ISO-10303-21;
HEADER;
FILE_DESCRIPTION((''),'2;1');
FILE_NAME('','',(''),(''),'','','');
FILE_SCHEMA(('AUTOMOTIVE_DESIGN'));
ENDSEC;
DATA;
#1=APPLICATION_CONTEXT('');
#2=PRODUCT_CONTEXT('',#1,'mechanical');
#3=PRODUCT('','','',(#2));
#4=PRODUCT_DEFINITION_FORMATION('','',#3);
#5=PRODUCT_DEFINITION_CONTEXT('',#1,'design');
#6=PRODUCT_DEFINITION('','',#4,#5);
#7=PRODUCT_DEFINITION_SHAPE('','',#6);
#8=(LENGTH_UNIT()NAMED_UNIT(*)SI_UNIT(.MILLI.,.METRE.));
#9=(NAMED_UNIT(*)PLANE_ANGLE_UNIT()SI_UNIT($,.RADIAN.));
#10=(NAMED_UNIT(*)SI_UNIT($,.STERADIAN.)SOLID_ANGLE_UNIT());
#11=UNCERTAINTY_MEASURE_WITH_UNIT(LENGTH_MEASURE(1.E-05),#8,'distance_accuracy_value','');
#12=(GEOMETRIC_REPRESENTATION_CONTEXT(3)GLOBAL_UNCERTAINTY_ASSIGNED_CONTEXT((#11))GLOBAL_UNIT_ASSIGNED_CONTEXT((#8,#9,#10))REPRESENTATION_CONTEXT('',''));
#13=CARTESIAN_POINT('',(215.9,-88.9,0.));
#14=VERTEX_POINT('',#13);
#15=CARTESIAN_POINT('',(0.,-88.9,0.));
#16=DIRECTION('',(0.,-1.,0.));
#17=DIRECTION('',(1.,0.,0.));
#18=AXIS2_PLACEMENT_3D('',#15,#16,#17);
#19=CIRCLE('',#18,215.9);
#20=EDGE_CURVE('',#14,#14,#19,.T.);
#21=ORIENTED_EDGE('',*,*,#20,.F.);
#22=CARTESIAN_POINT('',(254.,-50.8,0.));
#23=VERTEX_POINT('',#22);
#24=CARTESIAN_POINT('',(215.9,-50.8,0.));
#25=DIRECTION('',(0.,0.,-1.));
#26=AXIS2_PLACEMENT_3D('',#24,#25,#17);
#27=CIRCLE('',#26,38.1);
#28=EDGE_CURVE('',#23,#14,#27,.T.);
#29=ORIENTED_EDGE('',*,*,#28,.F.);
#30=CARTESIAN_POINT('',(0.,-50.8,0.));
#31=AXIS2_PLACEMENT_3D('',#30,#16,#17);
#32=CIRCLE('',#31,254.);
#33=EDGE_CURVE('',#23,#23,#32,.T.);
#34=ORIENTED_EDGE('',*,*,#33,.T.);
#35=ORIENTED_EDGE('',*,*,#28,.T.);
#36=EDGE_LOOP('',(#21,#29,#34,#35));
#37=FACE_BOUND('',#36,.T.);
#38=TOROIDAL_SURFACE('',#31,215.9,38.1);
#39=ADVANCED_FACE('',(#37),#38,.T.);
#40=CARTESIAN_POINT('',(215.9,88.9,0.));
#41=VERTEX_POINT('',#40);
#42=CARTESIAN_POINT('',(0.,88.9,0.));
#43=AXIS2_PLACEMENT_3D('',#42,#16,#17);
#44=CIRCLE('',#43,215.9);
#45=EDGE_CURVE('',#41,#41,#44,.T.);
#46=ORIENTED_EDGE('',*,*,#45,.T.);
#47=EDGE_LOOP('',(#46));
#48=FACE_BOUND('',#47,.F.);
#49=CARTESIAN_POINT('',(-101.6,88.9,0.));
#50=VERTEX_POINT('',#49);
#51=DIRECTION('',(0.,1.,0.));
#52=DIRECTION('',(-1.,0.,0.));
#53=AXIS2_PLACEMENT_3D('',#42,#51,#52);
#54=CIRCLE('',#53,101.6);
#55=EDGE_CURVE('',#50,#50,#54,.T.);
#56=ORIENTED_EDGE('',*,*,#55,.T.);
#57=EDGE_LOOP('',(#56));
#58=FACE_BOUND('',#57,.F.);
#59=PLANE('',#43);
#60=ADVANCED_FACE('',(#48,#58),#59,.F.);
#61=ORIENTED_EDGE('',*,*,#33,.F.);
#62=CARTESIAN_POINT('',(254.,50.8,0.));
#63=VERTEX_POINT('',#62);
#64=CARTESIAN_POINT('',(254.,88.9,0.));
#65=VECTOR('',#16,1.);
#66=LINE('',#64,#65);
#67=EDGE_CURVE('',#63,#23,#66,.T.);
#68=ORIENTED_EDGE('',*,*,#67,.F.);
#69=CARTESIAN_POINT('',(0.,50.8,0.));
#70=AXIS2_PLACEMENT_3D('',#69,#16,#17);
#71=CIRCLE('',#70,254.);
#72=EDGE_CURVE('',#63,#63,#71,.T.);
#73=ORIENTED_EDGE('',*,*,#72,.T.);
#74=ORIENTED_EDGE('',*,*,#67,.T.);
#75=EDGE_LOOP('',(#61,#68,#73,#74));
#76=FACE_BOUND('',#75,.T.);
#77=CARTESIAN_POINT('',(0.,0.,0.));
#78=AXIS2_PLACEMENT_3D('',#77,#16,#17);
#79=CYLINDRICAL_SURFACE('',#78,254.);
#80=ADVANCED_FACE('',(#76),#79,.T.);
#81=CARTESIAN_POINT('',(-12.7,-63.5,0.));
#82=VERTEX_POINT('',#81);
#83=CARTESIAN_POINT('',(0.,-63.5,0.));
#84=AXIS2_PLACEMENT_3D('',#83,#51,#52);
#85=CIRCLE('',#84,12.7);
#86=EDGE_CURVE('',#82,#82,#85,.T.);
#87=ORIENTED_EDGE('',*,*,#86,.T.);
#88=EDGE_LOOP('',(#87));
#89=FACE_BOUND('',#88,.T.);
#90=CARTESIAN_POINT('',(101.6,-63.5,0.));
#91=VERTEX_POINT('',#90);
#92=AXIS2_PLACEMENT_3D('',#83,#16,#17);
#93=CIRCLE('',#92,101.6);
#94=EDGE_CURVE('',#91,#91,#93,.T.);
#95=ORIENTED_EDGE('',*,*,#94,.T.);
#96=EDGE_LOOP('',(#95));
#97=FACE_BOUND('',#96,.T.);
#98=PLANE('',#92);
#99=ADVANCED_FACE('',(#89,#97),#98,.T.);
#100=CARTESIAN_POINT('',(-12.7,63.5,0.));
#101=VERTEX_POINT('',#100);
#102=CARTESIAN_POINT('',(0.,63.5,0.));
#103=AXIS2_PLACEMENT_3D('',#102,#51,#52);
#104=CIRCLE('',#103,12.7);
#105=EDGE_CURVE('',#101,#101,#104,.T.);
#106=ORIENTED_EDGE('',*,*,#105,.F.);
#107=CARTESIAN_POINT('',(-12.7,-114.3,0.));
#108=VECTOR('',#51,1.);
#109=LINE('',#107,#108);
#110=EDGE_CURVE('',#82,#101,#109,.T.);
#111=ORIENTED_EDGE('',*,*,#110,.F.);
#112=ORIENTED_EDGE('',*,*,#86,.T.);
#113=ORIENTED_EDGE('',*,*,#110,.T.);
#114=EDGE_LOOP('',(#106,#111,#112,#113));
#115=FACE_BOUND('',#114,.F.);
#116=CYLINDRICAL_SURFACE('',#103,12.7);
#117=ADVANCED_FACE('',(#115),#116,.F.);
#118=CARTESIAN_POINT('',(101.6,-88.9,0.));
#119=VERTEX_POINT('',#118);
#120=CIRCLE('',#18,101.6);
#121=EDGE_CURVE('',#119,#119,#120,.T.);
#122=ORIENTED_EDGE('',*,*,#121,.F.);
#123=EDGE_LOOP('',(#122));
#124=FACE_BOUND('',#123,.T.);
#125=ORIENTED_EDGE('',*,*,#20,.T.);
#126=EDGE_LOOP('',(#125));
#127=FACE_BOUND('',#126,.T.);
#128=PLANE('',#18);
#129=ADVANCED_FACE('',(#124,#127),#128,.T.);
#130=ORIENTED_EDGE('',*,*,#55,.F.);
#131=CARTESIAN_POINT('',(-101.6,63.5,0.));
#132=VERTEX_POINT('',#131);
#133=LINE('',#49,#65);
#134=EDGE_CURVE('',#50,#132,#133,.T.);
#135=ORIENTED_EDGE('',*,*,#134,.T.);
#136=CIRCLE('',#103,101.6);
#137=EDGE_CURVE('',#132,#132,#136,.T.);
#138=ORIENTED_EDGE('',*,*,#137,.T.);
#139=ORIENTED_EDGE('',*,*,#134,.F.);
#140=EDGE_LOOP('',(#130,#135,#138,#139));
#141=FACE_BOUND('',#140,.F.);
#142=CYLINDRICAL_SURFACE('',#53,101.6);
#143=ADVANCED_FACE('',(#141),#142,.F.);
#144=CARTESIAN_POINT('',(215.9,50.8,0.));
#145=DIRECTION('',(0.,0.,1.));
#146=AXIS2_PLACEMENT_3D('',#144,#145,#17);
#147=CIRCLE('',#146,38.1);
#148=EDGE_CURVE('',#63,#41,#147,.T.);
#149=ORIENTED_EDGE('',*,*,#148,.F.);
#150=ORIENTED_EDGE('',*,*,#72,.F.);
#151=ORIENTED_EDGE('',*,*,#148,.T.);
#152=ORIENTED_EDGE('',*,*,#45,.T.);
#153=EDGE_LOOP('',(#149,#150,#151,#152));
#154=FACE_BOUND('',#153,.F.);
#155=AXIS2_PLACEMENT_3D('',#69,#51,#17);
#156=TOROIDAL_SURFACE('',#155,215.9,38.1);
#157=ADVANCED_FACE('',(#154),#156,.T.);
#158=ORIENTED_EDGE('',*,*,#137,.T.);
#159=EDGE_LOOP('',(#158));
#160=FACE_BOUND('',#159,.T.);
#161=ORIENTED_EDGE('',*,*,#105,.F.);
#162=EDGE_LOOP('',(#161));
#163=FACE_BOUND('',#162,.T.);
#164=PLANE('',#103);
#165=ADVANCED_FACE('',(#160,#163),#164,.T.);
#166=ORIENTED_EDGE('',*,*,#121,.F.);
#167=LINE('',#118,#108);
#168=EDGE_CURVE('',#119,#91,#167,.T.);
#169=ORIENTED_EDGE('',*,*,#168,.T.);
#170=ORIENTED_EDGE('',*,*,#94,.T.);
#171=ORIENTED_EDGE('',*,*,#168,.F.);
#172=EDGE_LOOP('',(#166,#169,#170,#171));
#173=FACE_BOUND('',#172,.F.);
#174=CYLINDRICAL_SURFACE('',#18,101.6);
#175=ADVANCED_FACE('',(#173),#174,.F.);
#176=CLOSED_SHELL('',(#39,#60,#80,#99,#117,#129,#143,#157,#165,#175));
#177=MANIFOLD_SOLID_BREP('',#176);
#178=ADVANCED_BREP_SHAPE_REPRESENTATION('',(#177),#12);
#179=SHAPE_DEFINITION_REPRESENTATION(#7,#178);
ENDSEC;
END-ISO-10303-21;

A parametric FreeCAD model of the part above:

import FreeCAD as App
import Part
import Sketcher
Q = App.Units.Quantity


def edges_at(feature, points):
    """Names of the edges that pass closest to the given points."""
    edges = feature.Shape.Edges
    near = lambda p: min(range(len(edges)), key=lambda i: edges[i].distToShape(Part.Vertex(*p))[0])
    return sorted({f"Edge{near(p) + 1}" for p in points})

doc = App.newDocument("Part")
params = doc.addObject("Spreadsheet::Sheet", "Params")
for row, (alias, value) in enumerate([
    ("sketch1_diameter", "20 in"),
    ("pad1_length", "7 in"),
    ("sketch2_diameter", "8 in"),
    ("pocket1_length", "1 in"),
    ("sketch3_diameter", "8 in"),
    ("pocket2_length", "1 in"),
    ("fillet_radius", "1.5 in"),
    ("sketch4_diameter", "1 in"),
    ("pocket3_length", "14 in"),
], start=1):
    params.set(f"A{row}", alias)
    params.set(f"B{row}", "=" + value)
    params.setAlias(f"B{row}", alias)

body = doc.addObject("PartDesign::Body", "Body")

# Sketch on XZ plane
sketch1 = doc.addObject("Sketcher::SketchObject", "Sketch")
body.addObject(sketch1)
sketch1.AttachmentSupport = (doc.XZ_Plane, [""])
sketch1.MapMode = "FlatFace"
sketch1.addGeometry(Part.Circle(App.Vector(0, 0, 0), App.Vector(0, 0, 1), 254), False)
sketch1.addConstraint([
    Sketcher.Constraint("Coincident", 0, 3, -1, 1),
    Sketcher.Constraint("Diameter", 0, Q("20 in")),
])
sketch1.setExpression("Constraints[1]", "Params.sketch1_diameter")
pad1 = doc.addObject("PartDesign::Pad", "Pad")
body.addObject(pad1)
pad1.Profile = sketch1
pad1.setExpression("Length", "Params.pad1_length")
pad1.Midplane = True

# Sketch on XZ plane
sketch2 = doc.addObject("Sketcher::SketchObject", "Sketch001")
body.addObject(sketch2)
sketch2.AttachmentSupport = (doc.XZ_Plane, [""])
sketch2.MapMode = "FlatFace"
sketch2.AttachmentOffset = App.Placement(App.Vector(0, 0, 3.5 * 25.4), App.Rotation())
sketch2.addGeometry(Part.Circle(App.Vector(0, 0, 0), App.Vector(0, 0, 1), 102), False)
sketch2.addConstraint([
    Sketcher.Constraint("Coincident", 0, 3, -1, 1),
    Sketcher.Constraint("Diameter", 0, Q("8 in")),
])
sketch2.setExpression("Constraints[1]", "Params.sketch2_diameter")
pocket1 = doc.addObject("PartDesign::Pocket", "Pocket")
body.addObject(pocket1)
pocket1.Profile = sketch2
pocket1.setExpression("Length", "Params.pocket1_length")

# Sketch on XZ plane
sketch3 = doc.addObject("Sketcher::SketchObject", "Sketch002")
body.addObject(sketch3)
sketch3.AttachmentSupport = (doc.XZ_Plane, [""])
sketch3.MapMode = "FlatFace"
sketch3.AttachmentOffset = App.Placement(App.Vector(0, 0, -3.5 * 25.4), App.Rotation())
sketch3.addGeometry(Part.Circle(App.Vector(0, 0, 0), App.Vector(0, 0, 1), 102), False)
sketch3.addConstraint([
    Sketcher.Constraint("Coincident", 0, 3, -1, 1),
    Sketcher.Constraint("Diameter", 0, Q("8 in")),
])
sketch3.setExpression("Constraints[1]", "Params.sketch3_diameter")
pocket2 = doc.addObject("PartDesign::Pocket", "Pocket001")
body.addObject(pocket2)
pocket2.Profile = sketch3
pocket2.setExpression("Length", "Params.pocket2_length")
pocket2.Reversed = True
doc.recompute()

fillet = doc.addObject("PartDesign::Fillet", "Fillet")
body.addObject(fillet)
fillet.Base = (pocket2, edges_at(pocket2, [(-254, 88.9, 0), (-254, -88.9, 0)]))
fillet.setExpression("Radius", "Params.fillet_radius")

# Sketch on XZ plane
sketch4 = doc.addObject("Sketcher::SketchObject", "Sketch003")
body.addObject(sketch4)
sketch4.AttachmentSupport = (doc.XZ_Plane, [""])
sketch4.MapMode = "FlatFace"
sketch4.AttachmentOffset = App.Placement(App.Vector(0, 0, -2.5 * 25.4), App.Rotation())
sketch4.addGeometry(Part.Circle(App.Vector(0, 0, 0), App.Vector(0, 0, 1), 13), False)
sketch4.addConstraint([
    Sketcher.Constraint("Coincident", 0, 3, -1, 1),
    Sketcher.Constraint("Diameter", 0, Q("1 in")),
])
sketch4.setExpression("Constraints[1]", "Params.sketch4_diameter")
pocket3 = doc.addObject("PartDesign::Pocket", "Pocket002")
body.addObject(pocket3)
pocket3.Profile = sketch4
pocket3.setExpression("Length", "Params.pocket3_length")
pocket3.Midplane = True

doc.recompute()
